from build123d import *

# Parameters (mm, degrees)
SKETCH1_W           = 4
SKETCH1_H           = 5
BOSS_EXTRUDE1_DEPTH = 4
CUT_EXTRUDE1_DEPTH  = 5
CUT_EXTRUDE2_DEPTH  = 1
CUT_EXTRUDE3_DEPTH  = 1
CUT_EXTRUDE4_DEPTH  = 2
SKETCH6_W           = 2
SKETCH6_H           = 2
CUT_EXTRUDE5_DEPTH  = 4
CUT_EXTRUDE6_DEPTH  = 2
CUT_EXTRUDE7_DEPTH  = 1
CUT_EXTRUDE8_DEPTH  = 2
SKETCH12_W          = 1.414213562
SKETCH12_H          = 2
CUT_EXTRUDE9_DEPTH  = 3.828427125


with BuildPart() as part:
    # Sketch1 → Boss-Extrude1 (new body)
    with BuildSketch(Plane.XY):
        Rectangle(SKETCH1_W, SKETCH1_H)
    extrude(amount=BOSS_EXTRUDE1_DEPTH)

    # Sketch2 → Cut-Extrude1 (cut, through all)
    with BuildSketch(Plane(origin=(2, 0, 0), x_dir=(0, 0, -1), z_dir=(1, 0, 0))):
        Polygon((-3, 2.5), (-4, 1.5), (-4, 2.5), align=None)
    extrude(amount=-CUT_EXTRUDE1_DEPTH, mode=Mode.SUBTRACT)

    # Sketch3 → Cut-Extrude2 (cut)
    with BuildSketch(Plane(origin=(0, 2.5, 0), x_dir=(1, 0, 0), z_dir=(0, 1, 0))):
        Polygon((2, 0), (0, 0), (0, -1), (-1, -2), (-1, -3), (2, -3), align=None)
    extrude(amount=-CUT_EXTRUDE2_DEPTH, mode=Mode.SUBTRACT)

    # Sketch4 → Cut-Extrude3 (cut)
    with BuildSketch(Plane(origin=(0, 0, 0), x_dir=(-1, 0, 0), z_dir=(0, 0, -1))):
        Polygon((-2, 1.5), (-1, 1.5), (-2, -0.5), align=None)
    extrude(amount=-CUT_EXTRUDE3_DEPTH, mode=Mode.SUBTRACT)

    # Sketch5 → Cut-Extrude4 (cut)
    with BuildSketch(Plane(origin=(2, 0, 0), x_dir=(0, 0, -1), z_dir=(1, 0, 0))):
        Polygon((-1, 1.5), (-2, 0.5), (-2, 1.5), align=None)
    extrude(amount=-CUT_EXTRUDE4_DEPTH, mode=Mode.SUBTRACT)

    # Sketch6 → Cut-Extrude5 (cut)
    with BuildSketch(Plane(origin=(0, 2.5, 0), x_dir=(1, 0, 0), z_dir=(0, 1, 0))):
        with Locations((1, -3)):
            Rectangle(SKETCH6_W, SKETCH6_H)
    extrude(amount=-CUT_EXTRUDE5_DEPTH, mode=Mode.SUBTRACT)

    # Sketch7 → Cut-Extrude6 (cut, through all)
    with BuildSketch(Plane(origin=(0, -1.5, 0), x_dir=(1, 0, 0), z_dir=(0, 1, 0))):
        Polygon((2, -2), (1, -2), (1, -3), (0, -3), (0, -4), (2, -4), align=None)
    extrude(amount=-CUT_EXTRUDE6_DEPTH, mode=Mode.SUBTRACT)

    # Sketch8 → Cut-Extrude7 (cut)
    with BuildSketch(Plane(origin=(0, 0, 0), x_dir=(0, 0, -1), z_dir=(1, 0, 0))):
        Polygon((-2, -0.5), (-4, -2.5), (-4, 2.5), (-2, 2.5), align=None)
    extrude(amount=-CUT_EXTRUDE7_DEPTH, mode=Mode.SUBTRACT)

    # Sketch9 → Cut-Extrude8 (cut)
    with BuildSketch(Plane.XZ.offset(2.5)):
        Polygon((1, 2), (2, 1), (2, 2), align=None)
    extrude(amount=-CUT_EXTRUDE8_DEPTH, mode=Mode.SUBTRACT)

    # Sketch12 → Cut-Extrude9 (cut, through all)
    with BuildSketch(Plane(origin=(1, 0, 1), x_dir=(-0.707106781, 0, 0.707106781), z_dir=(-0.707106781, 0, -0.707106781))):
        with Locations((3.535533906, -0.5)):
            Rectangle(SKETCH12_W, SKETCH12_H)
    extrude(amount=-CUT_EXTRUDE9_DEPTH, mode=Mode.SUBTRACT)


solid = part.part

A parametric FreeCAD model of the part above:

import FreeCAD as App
import Part
import Sketcher

V = App.Vector
Q = App.Units.Quantity


def add_polygon(sketch, points):
    """Adds a closed chain of lines whose ends are joined by coincident constraints."""
    first, n = sketch.GeometryCount, len(points)
    for a, b in zip(points, points[1:] + points[:1]):
        sketch.addGeometry(Part.LineSegment(App.Vector(*a, 0), App.Vector(*b, 0)), False)
    for i in range(n):
        sketch.addConstraint(Sketcher.Constraint("Coincident", first + i, 2, first + (i + 1) % n, 1))

doc = App.newDocument("Part")
body = doc.addObject("PartDesign::Body", "Body")

# Sketch on XY plane
sketch1 = body.newObject("Sketcher::SketchObject", "Sketch")
sketch1.AttachmentSupport = (doc.getObject("XY_Plane"), [""])
sketch1.MapMode = "FlatFace"
add_polygon(sketch1, [(-2, 2.5), (-2, -2.5), (2, -2.5), (2, 2.5)])  # lines 0-3
sketch1.addConstraint(Sketcher.Constraint("Vertical", 0))
sketch1.addConstraint(Sketcher.Constraint("Horizontal", 1))
sketch1.addConstraint(Sketcher.Constraint("Vertical", 2))
sketch1.addConstraint(Sketcher.Constraint("Horizontal", 3))
sketch1.addConstraint(Sketcher.Constraint("Symmetric", 0, 2, 2, 2, -1, 1))
sketch1.addConstraint(Sketcher.Constraint("DistanceX", 1, 1, 1, 2, Q("4 mm")))
sketch1.addConstraint(Sketcher.Constraint("DistanceY", 0, 2, 0, 1, Q("5 mm")))
pad1 = body.newObject("PartDesign::Pad", "Pad")
pad1.Profile = sketch1
pad1.Length = 4

# Sketch on YZ plane
sketch2 = body.newObject("Sketcher::SketchObject", "Sketch001")
sketch2.AttachmentSupport = (doc.getObject("YZ_Plane"), [""])
sketch2.MapMode = "FlatFace"
sketch2.AttachmentOffset = App.Placement(V(0, 0, 2), App.Rotation())
add_polygon(sketch2, [(1.5, 4), (2.5, 3), (2.5, 4)])  # lines 0-2
sketch2.addConstraint(Sketcher.Constraint("Vertical", 1))
sketch2.addConstraint(Sketcher.Constraint("Horizontal", 2))
sketch2.addConstraint(Sketcher.Constraint("Equal", 2, 1))
sketch2.addConstraint(Sketcher.Constraint("DistanceX", 2, 2, 2, 1, Q("1 mm")))
sketch2.addConstraint(Sketcher.Constraint("DistanceY", -1, 1, 0, 2, Q("3 mm")))
sketch2.addConstraint(Sketcher.Constraint("DistanceX", -1, 1, 0, 2, Q("2.5 mm")))
pocket1 = body.newObject("PartDesign::Pocket", "Pocket")
pocket1.Profile = sketch2
pocket1.Type = "ThroughAll"

# Sketch on XZ plane
sketch3 = body.newObject("Sketcher::SketchObject", "Sketch002")
sketch3.AttachmentSupport = (doc.getObject("XZ_Plane"), [""])
sketch3.MapMode = "FlatFace"
sketch3.AttachmentOffset = App.Placement(V(0, 0, -2.5), App.Rotation())
add_polygon(sketch3, [(2, 0), (0, 0), (0, 1), (-1, 2), (-1, 3), (2, 3)])  # lines 0-5
sketch3.addConstraint(Sketcher.Constraint("Horizontal", 0))
sketch3.addConstraint(Sketcher.Constraint("Vertical", 1))
sketch3.addConstraint(Sketcher.Constraint("Vertical", 3))
sketch3.addConstraint(Sketcher.Constraint("Horizontal", 4))
sketch3.addConstraint(Sketcher.Constraint("Vertical", 5))
sketch3.addConstraint(Sketcher.Constraint("Coincident", 0, 2, -1, 1))
sketch3.addConstraint(Sketcher.Constraint("Equal", 1, 3))
sketch3.addConstraint(Sketcher.Constraint("Equal", 4, 5))
sketch3.addConstraint(Sketcher.Constraint("DistanceX", 0, 2, 0, 1, Q("2 mm")))
sketch3.addConstraint(Sketcher.Constraint("DistanceX", 4, 1, 4, 2, Q("3 mm")))
sketch3.addConstraint(Sketcher.Constraint("DistanceY", 1, 1, 1, 2, Q("1 mm")))
pocket2 = body.newObject("PartDesign::Pocket", "Pocket001")
pocket2.Profile = sketch3
pocket2.Length = 1
pocket2.Reversed = True

# Sketch on XY plane
sketch4 = body.newObject("Sketcher::SketchObject", "Sketch003")
sketch4.AttachmentSupport = (doc.getObject("XY_Plane"), [""])
sketch4.MapMode = "FlatFace"
add_polygon(sketch4, [(1, 1.5), (2, 1.5), (2, -0.5)])  # lines 0-2
sketch4.addConstraint(Sketcher.Constraint("Horizontal", 0))
sketch4.addConstraint(Sketcher.Constraint("Vertical", 1))
sketch4.addConstraint(Sketcher.Constraint("DistanceX", 0, 1, 0, 2, Q("1 mm")))
sketch4.addConstraint(Sketcher.Constraint("DistanceY", 1, 2, 1, 1, Q("2 mm")))
sketch4.addConstraint(Sketcher.Constraint("DistanceX", -1, 1, 0, 2, Q("2 mm")))
sketch4.addConstraint(Sketcher.Constraint("DistanceY", -1, 1, 0, 2, Q("1.5 mm")))
pocket3 = body.newObject("PartDesign::Pocket", "Pocket002")
pocket3.Profile = sketch4
pocket3.Length = 1
pocket3.Reversed = True

# Sketch on YZ plane
sketch5 = body.newObject("Sketcher::SketchObject", "Sketch004")
sketch5.AttachmentSupport = (doc.getObject("YZ_Plane"), [""])
sketch5.MapMode = "FlatFace"
sketch5.AttachmentOffset = App.Placement(V(0, 0, 2), App.Rotation())
add_polygon(sketch5, [(0.5, 2), (1.5, 1), (1.5, 2)])  # lines 0-2
sketch5.addConstraint(Sketcher.Constraint("Vertical", 1))
sketch5.addConstraint(Sketcher.Constraint("Horizontal", 2))
sketch5.addConstraint(Sketcher.Constraint("Equal", 2, 1))
sketch5.addConstraint(Sketcher.Constraint("DistanceX", 2, 2, 2, 1, Q("1 mm")))
sketch5.addConstraint(Sketcher.Constraint("DistanceY", -1, 1, 0, 2, Q("1 mm")))
sketch5.addConstraint(Sketcher.Constraint("DistanceX", -1, 1, 0, 2, Q("1.5 mm")))
pocket4 = body.newObject("PartDesign::Pocket", "Pocket003")
pocket4.Profile = sketch5
pocket4.Length = 2

# Sketch on XZ plane
sketch6 = body.newObject("Sketcher::SketchObject", "Sketch005")
sketch6.AttachmentSupport = (doc.getObject("XZ_Plane"), [""])
sketch6.MapMode = "FlatFace"
sketch6.AttachmentOffset = App.Placement(V(0, 0, -2.5), App.Rotation())
add_polygon(sketch6, [(0, 2), (0, 4), (2, 4), (2, 2)])  # lines 0-3
sketch6.addConstraint(Sketcher.Constraint("Vertical", 0))
sketch6.addConstraint(Sketcher.Constraint("Horizontal", 1))
sketch6.addConstraint(Sketcher.Constraint("Vertical", 2))
sketch6.addConstraint(Sketcher.Constraint("Horizontal", 3))
sketch6.addConstraint(Sketcher.Constraint("PointOnObject", 0, 2, -2))
sketch6.addConstraint(Sketcher.Constraint("Equal", 3, 0))
sketch6.addConstraint(Sketcher.Constraint("DistanceX", 1, 1, 1, 2, Q("2 mm")))
sketch6.addConstraint(Sketcher.Constraint("DistanceY", -1, 1, 0, 2, Q("4 mm")))
pocket5 = body.newObject("PartDesign::Pocket", "Pocket004")
pocket5.Profile = sketch6
pocket5.Length = 4
pocket5.Reversed = True

# Sketch on XZ plane
sketch7 = body.newObject("Sketcher::SketchObject", "Sketch006")
sketch7.AttachmentSupport = (doc.getObject("XZ_Plane"), [""])
sketch7.MapMode = "FlatFace"
sketch7.AttachmentOffset = App.Placement(V(0, 0, 1.5), App.Rotation())
add_polygon(sketch7, [(2, 2), (1, 2), (1, 3), (0, 3), (0, 4), (2, 4)])  # lines 0-5
sketch7.addConstraint(Sketcher.Constraint("Horizontal", 0))
sketch7.addConstraint(Sketcher.Constraint("Vertical", 1))
sketch7.addConstraint(Sketcher.Constraint("Horizontal", 2))
sketch7.addConstraint(Sketcher.Constraint("Vertical", 3))
sketch7.addConstraint(Sketcher.Constraint("Horizontal", 4))
sketch7.addConstraint(Sketcher.Constraint("Vertical", 5))
sketch7.addConstraint(Sketcher.Constraint("PointOnObject", 2, 2, -2))
sketch7.addConstraint(Sketcher.Constraint("Equal", 0, 2))
sketch7.addConstraint(Sketcher.Constraint("Equal", 2, 1))
sketch7.addConstraint(Sketcher.Constraint("Equal", 1, 3))
sketch7.addConstraint(Sketcher.Constraint("DistanceX", 0, 2, 0, 1, Q("1 mm")))
sketch7.addConstraint(Sketcher.Constraint("DistanceY", -1, 1, 0, 2, Q("2 mm")))
pocket6 = body.newObject("PartDesign::Pocket", "Pocket005")
pocket6.Profile = sketch7
pocket6.Type = "ThroughAll"
pocket6.Reversed = True

# Sketch on YZ plane
sketch8 = body.newObject("Sketcher::SketchObject", "Sketch007")
sketch8.AttachmentSupport = (doc.getObject("YZ_Plane"), [""])
sketch8.MapMode = "FlatFace"
add_polygon(sketch8, [(-2.5, 4), (-0.5, 2), (2.5, 2), (2.5, 4)])  # lines 0-3
sketch8.addConstraint(Sketcher.Constraint("Horizontal", 1))
sketch8.addConstraint(Sketcher.Constraint("Vertical", 2))
sketch8.addConstraint(Sketcher.Constraint("Horizontal", 3))
sketch8.addConstraint(Sketcher.Constraint("DistanceX", 1, 1, 1, 2, Q("3 mm")))
sketch8.addConstraint(Sketcher.Constraint("DistanceX", 3, 2, 3, 1, Q("5 mm")))
sketch8.addConstraint(Sketcher.Constraint("DistanceY", 2, 1, 2, 2, Q("2 mm")))
sketch8.addConstraint(Sketcher.Constraint("DistanceY", -1, 1, 0, 2, Q("2 mm")))
sketch8.addConstraint(Sketcher.Constraint("DistanceX", 0, 2, -1, 1, Q("0.5 mm")))
pocket7 = body.newObject("PartDesign::Pocket", "Pocket006")
pocket7.Profile = sketch8
pocket7.Length = 1

# Sketch on XZ plane
sketch9 = body.newObject("Sketcher::SketchObject", "Sketch008")
sketch9.AttachmentSupport = (doc.getObject("XZ_Plane"), [""])
sketch9.MapMode = "FlatFace"
sketch9.AttachmentOffset = App.Placement(V(0, 0, 2.5), App.Rotation())
add_polygon(sketch9, [(1, 2), (2, 1), (2, 2)])  # lines 0-2
sketch9.addConstraint(Sketcher.Constraint("Vertical", 1))
sketch9.addConstraint(Sketcher.Constraint("Horizontal", 2))
sketch9.addConstraint(Sketcher.Constraint("Equal", 2, 1))
sketch9.addConstraint(Sketcher.Constraint("DistanceX", 2, 2, 2, 1, Q("1 mm")))
sketch9.addConstraint(Sketcher.Constraint("DistanceX", -1, 1, 0, 2, Q("2 mm")))
sketch9.addConstraint(Sketcher.Constraint("DistanceY", -1, 1, 0, 2, Q("1 mm")))
pocket8 = body.newObject("PartDesign::Pocket", "Pocket007")
pocket8.Profile = sketch9
pocket8.Length = 2

# Sketch on an angled plane
sketch10 = body.newObject("Sketcher::SketchObject", "Sketch009")
sketch10.Placement = App.Placement(V(1, 0, 1), App.Rotation(V(-0.707106781, 0, 0.707106781), V(0, 0.999999999, 0), V(-0.707106781, 0, -0.707106781), "ZXY"))
add_polygon(sketch10, [(2.8, 0.5), (2.8, -1.5), (4.2, -1.5), (4.2, 0.5)])  # lines 0-3
sketch10.addConstraint(Sketcher.Constraint("Vertical", 0))
sketch10.addConstraint(Sketcher.Constraint("Horizontal", 1))
sketch10.addConstraint(Sketcher.Constraint("Vertical", 2))
sketch10.addConstraint(Sketcher.Constraint("Horizontal", 3))
sketch10.addConstraint(Sketcher.Constraint("DistanceY", 0, 2, 0, 1, Q("2 mm")))
sketch10.addConstraint(Sketcher.Constraint("DistanceY", 0, 2, -1, 1, Q("1.5 mm")))
sketch10.addConstraint(Sketcher.Constraint("DistanceX", 1, 1, 1, 2, Q("1.414214 mm")))
sketch10.addConstraint(Sketcher.Constraint("DistanceX", -1, 1, 1, 2, Q("4.242641 mm")))
pocket9 = body.newObject("PartDesign::Pocket", "Pocket008")
pocket9.Profile = sketch10
pocket9.Type = "ThroughAll"

doc.recompute()
